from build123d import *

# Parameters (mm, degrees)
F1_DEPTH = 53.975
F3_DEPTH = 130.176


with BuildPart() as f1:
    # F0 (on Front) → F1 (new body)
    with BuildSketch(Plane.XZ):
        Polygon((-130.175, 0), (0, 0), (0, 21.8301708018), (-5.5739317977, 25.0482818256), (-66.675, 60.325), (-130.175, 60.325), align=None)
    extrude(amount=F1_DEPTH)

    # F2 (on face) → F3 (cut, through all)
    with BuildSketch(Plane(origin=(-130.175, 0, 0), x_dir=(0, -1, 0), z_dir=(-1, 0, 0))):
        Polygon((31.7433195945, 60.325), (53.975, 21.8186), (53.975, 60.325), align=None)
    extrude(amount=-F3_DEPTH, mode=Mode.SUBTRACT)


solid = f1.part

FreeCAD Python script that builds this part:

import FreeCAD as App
import Part
import Sketcher

V = App.Vector
Q = App.Units.Quantity


def add_polygon(sketch, points):
    """Adds a closed chain of lines whose ends are joined by coincident constraints."""
    first, n = sketch.GeometryCount, len(points)
    for a, b in zip(points, points[1:] + points[:1]):
        sketch.addGeometry(Part.LineSegment(App.Vector(*a, 0), App.Vector(*b, 0)), False)
    for i in range(n):
        sketch.addConstraint(Sketcher.Constraint("Coincident", first + i, 2, first + (i + 1) % n, 1))

doc = App.newDocument("Part")
body = doc.addObject("PartDesign::Body", "Body")

sketch1 = body.newObject("Sketcher::SketchObject", "Sketch")
sketch1.AttachmentSupport = (doc.getObject("XZ_Plane"), [""])
sketch1.MapMode = "FlatFace"
add_polygon(sketch1, [(-130, 0), (0, 0), (0, 22), (-6, 25), (-67, 60), (-130, 60)])
sketch1.addConstraint(Sketcher.Constraint("Horizontal", 0))
sketch1.addConstraint(Sketcher.Constraint("Vertical", 1))
sketch1.addConstraint(Sketcher.Constraint("Horizontal", 4))
sketch1.addConstraint(Sketcher.Constraint("Vertical", 5))
sketch1.addConstraint(Sketcher.Constraint("Coincident", 0, 2, -1, 1))
sketch1.addConstraint(Sketcher.Constraint("Parallel", 2, 3))
sketch1.addConstraint(Sketcher.Constraint("DistanceX", 4, 2, 4, 1, Q("2.5 in")))
sketch1.addConstraint(Sketcher.Constraint("Angle", 2, Q("150 deg")))
sketch1.addConstraint(Sketcher.Constraint("DistanceX", 0, 1, 0, 2, Q("5.125 in")))
sketch1.addConstraint(Sketcher.Constraint("DistanceY", 5, 2, 5, 1, Q("2.375 in")))
sketch1.addConstraint(Sketcher.Constraint("DistanceX", 2, 2, -1, 1, Q("5.573932 mm")))
pad1 = body.newObject("PartDesign::Pad", "Pad")
pad1.Profile = sketch1
pad1.Length = Q("2.125 in")

sketch2 = body.newObject("Sketcher::SketchObject", "Sketch001")
sketch2.AttachmentSupport = (doc.getObject("YZ_Plane"), [""])
sketch2.MapMode = "FlatFace"
sketch2.AttachmentOffset = App.Placement(V(0, 0, -5.125 * 25.4), App.Rotation())
add_polygon(sketch2, [(-32, 60), (-54, 22), (-54, 60)])
sketch2.addConstraint(Sketcher.Constraint("Vertical", 1))
sketch2.addConstraint(Sketcher.Constraint("Horizontal", 2))
sketch2.addConstraint(Sketcher.Constraint("Angle", 0, Q("-120 deg")))
sketch2.addConstraint(Sketcher.Constraint("DistanceY", 1, 1, 1, 2, Q("1.516 in")))
sketch2.addConstraint(Sketcher.Constraint("DistanceX", 0, 2, -1, 1, Q("2.125 in")))
sketch2.addConstraint(Sketcher.Constraint("DistanceY", -1, 1, 0, 2, Q("0.859 in")))
pocket1 = body.newObject("PartDesign::Pocket", "Pocket")
pocket1.Profile = sketch2
pocket1.Type = "ThroughAll"
pocket1.Reversed = True

doc.recompute()
